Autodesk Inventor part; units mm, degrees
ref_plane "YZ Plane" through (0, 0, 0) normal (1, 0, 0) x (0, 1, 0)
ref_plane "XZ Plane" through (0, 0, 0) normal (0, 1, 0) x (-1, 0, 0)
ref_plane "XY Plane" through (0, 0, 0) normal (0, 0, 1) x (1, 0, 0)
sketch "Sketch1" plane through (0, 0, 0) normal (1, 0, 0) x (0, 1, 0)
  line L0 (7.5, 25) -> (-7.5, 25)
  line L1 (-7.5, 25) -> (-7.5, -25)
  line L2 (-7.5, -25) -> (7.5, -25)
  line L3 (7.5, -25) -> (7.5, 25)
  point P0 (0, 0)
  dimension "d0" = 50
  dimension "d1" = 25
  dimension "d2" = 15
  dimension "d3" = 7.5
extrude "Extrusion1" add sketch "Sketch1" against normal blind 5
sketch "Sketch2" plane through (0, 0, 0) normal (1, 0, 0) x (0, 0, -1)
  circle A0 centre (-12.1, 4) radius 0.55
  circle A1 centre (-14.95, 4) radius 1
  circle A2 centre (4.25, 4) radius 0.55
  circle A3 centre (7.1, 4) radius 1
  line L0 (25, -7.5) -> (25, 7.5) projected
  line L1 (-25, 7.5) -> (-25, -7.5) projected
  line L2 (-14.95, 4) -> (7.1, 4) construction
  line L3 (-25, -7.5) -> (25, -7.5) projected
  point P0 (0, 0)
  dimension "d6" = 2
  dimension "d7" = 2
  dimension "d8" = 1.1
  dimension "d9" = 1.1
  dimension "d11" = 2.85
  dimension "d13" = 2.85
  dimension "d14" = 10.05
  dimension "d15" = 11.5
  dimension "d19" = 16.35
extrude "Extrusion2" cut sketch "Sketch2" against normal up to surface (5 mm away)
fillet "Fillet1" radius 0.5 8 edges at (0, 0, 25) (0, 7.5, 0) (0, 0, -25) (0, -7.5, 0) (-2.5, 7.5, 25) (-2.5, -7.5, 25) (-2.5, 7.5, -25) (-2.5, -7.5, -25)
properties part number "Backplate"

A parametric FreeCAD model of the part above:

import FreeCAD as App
import Part
import Sketcher


def edges_at(feature, points):
    """Names of the edges that pass closest to the given points."""
    edges = feature.Shape.Edges
    near = lambda p: min(range(len(edges)), key=lambda i: edges[i].distToShape(Part.Vertex(*p))[0])
    return sorted({f"Edge{near(p) + 1}" for p in points})


def add_polygon(sketch, points):
    """Adds a closed chain of lines whose ends are joined by coincident constraints."""
    first, n = sketch.GeometryCount, len(points)
    for a, b in zip(points, points[1:] + points[:1]):
        sketch.addGeometry(Part.LineSegment(App.Vector(*a, 0), App.Vector(*b, 0)), False)
    for i in range(n):
        sketch.addConstraint(Sketcher.Constraint("Coincident", first + i, 2, first + (i + 1) % n, 1))

doc = App.newDocument("Part")
body = doc.addObject("PartDesign::Body", "Body")

sketch1 = body.newObject("Sketcher::SketchObject", "Sketch")
sketch1.AttachmentSupport = (doc.getObject("YZ_Plane"), [""])
sketch1.MapMode = "FlatFace"
add_polygon(sketch1, [(8, -25), (8, 25), (-8, 25), (-8, -25)])
sketch1.addConstraint([
    Sketcher.Constraint("Vertical", 0),
    Sketcher.Constraint("Horizontal", 1),
    Sketcher.Constraint("Vertical", 2),
    Sketcher.Constraint("Horizontal", 3),
    Sketcher.Constraint("Symmetric", 0, 2, 2, 2, -1, 1),
    Sketcher.Constraint("DistanceX", 1, 2, 1, 1, 15.0),
    Sketcher.Constraint("DistanceY", 0, 1, 0, 2, 50.0),
])
pad1 = body.newObject("PartDesign::Pad", "Pad")
pad1.Profile = sketch1
pad1.Length = 5
pad1.Reversed = True

sketch2 = body.newObject("Sketcher::SketchObject", "Sketch001")
sketch2.AttachmentSupport = (doc.getObject("YZ_Plane"), [""])
sketch2.MapMode = "FlatFace"
sketch2.addGeometry([
    Part.Circle(App.Vector(4, 12.1, 0), App.Vector(0, 0, 1), 0.6),
    Part.Circle(App.Vector(4, 14.9, 0), App.Vector(0, 0, 1), 1),
    Part.Circle(App.Vector(4, -4.2, 0), App.Vector(0, 0, 1), 0.6),
    Part.Circle(App.Vector(4, -7.1, 0), App.Vector(0, 0, 1), 1),
], False)
sketch2.addConstraint([
    Sketcher.Constraint("Equal", 0, 2),
    Sketcher.Constraint("Equal", 1, 3),
    Sketcher.Constraint("Vertical", 0, 3, 1, 3),
    Sketcher.Constraint("Vertical", 1, 3, 2, 3),
    Sketcher.Constraint("Vertical", 2, 3, 3, 3),
    Sketcher.Constraint("Diameter", 1, 2.0),
    Sketcher.Constraint("Diameter", 0, 1.1),
    Sketcher.Constraint("DistanceY", 0, 3, 1, 3, 2.85),
    Sketcher.Constraint("DistanceY", 2, 3, 0, 3, 16.35),
    Sketcher.Constraint("DistanceY", 3, 3, 2, 3, 2.85),
    Sketcher.Constraint("DistanceX", -1, 1, 0, 3, 4.0),
    Sketcher.Constraint("DistanceY", -1, 1, 0, 3, 12.1),
])
pocket1 = body.newObject("PartDesign::Pocket", "Pocket")
pocket1.Profile = sketch2
pocket1.Length = 5
doc.recompute()

fillet = body.newObject("PartDesign::Fillet", "Fillet")
fillet.Base = (pocket1, edges_at(pocket1, [
    (0, 0, 25),
    (0, 7.5, 0),
    (0, 0, -25),
    (0, -7.5, 0),
    (-2.5, 7.5, 25),
    (-2.5, -7.5, 25),
    (-2.5, 7.5, -25),
    (-2.5, -7.5, -25),
]))
fillet.Radius = 0.5

doc.recompute()
